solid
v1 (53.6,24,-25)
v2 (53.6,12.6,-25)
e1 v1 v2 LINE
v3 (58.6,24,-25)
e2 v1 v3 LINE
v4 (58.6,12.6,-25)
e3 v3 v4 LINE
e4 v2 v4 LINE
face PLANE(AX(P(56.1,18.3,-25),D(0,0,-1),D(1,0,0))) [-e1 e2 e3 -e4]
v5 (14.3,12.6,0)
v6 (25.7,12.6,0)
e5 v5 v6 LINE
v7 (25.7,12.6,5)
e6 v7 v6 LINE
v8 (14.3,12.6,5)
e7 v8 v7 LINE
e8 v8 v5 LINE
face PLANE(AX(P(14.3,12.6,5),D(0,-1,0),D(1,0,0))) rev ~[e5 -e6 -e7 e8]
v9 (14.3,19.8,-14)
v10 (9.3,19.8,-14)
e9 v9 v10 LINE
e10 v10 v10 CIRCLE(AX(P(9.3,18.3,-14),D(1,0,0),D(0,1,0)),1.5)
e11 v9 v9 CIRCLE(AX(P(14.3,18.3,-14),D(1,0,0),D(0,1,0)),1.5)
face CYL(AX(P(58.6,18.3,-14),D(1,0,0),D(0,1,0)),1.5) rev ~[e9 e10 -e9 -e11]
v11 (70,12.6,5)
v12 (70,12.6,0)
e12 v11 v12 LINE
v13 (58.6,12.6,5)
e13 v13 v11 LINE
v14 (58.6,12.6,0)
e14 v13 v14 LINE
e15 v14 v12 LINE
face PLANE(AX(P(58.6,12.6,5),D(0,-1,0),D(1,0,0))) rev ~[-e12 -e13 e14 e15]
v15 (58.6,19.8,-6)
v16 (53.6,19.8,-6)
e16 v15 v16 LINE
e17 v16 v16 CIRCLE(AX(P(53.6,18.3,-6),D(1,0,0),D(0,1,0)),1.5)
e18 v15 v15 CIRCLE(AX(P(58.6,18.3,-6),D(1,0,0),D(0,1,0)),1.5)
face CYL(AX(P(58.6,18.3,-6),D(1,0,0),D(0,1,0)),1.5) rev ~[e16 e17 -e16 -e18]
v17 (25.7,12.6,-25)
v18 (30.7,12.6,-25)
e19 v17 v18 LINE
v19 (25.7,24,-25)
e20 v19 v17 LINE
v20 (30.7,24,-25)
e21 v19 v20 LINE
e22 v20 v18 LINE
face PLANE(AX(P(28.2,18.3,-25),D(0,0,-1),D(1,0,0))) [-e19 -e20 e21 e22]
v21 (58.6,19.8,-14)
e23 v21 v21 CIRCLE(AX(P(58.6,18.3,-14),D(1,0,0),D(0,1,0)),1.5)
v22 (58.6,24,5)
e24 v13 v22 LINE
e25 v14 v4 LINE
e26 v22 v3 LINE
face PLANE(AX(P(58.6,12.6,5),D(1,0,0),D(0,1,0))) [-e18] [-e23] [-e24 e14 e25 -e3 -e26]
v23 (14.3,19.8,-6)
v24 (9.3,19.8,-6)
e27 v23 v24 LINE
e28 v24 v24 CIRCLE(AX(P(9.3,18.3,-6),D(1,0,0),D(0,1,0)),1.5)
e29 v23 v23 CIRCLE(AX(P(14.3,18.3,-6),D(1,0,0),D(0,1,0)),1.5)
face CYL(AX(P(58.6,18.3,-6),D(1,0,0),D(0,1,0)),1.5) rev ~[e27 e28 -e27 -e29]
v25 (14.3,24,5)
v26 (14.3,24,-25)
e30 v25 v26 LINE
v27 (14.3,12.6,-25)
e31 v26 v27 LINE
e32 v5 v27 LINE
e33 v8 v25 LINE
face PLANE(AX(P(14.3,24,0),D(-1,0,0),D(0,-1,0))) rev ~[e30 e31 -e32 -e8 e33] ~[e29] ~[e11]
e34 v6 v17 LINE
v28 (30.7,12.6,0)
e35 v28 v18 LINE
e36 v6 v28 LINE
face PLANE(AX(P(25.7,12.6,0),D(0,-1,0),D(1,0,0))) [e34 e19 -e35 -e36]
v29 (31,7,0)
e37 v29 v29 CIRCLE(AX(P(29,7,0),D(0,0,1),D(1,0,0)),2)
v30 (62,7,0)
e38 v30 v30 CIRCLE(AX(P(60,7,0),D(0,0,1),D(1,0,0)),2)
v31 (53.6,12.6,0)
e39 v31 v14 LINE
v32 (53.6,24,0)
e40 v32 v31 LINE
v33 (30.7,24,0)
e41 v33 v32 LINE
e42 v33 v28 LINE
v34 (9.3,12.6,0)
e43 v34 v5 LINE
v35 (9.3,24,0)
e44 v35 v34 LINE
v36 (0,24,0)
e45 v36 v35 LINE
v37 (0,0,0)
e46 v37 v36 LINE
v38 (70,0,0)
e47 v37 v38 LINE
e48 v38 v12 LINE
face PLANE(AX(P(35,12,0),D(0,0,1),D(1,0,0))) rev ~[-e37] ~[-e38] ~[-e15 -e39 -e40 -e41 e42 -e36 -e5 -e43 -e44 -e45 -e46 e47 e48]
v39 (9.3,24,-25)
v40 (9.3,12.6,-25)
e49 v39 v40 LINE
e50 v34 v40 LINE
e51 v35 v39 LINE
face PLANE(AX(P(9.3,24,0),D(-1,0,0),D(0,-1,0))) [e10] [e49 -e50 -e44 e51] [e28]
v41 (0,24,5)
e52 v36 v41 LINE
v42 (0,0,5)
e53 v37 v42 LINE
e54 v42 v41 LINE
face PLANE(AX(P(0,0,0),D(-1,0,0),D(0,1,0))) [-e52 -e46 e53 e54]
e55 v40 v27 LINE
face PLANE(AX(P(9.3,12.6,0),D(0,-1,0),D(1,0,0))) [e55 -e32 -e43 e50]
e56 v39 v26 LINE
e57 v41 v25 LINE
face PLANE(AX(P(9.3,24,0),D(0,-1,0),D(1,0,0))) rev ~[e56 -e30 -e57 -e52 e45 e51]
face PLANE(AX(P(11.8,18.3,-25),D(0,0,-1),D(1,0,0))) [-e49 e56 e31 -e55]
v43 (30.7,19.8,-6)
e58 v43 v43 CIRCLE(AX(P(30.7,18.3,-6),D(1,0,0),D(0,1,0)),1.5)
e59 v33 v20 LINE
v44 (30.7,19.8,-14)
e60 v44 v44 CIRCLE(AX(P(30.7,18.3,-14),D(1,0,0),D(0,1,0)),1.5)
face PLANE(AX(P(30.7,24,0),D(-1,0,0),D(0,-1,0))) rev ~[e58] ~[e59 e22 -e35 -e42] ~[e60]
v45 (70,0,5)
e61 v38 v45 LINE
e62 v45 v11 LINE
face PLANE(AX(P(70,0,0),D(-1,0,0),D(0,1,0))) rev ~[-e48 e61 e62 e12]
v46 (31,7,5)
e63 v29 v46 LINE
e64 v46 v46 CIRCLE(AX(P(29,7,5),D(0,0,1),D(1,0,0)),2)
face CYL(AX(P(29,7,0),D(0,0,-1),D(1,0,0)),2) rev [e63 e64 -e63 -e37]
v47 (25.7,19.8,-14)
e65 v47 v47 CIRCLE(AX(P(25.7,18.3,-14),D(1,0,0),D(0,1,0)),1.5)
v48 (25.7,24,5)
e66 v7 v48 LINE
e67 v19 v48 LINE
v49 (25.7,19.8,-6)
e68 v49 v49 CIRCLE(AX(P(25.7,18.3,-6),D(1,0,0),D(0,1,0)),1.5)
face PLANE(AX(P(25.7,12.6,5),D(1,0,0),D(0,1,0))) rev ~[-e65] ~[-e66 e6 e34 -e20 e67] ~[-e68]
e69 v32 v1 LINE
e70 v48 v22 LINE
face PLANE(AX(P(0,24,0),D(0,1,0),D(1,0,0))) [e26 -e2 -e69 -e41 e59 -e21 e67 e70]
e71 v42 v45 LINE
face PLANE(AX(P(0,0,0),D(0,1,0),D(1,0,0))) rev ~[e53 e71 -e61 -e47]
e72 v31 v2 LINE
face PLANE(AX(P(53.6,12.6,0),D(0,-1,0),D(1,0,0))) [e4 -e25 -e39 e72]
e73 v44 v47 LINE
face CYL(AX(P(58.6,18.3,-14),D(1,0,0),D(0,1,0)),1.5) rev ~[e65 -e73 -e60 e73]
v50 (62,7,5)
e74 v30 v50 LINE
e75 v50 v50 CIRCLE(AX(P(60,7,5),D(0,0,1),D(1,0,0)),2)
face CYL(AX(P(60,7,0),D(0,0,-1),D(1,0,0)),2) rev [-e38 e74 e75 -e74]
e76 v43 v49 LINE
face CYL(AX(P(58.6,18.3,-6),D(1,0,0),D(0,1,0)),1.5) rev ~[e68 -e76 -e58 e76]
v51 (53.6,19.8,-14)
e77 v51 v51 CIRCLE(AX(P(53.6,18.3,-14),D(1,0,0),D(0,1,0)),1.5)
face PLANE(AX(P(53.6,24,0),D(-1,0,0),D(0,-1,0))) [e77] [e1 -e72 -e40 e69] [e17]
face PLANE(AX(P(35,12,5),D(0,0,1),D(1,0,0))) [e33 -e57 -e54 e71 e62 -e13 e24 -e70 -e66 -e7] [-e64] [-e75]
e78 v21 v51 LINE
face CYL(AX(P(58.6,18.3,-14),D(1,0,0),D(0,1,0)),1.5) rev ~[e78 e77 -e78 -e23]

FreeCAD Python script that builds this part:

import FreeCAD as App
import Part
import Sketcher

V = App.Vector


def add_polygon(sketch, points):
    """Adds a closed chain of lines whose ends are joined by coincident constraints."""
    first, n = sketch.GeometryCount, len(points)
    for a, b in zip(points, points[1:] + points[:1]):
        sketch.addGeometry(Part.LineSegment(App.Vector(*a, 0), App.Vector(*b, 0)), False)
    for i in range(n):
        sketch.addConstraint(Sketcher.Constraint("Coincident", first + i, 2, first + (i + 1) % n, 1))

doc = App.newDocument("Part")
body = doc.addObject("PartDesign::Body", "Body")

# Sketch on XY plane
sketch1 = body.newObject("Sketcher::SketchObject", "Sketch")
sketch1.AttachmentSupport = (doc.getObject("XY_Plane"), [""])
sketch1.MapMode = "FlatFace"
add_polygon(sketch1, [(0, 24), (0, 0), (70, 0), (70, 24)])  # lines 0-3
sketch1.addGeometry(Part.Circle(V(29, 7, 0), V(0, 0, 1), 2), False)  # 4
sketch1.addGeometry(Part.Circle(V(60, 7, 0), V(0, 0, 1), 2), False)  # 5
sketch1.addConstraint([
    Sketcher.Constraint("Vertical", 0),
    Sketcher.Constraint("Horizontal", 1),
    Sketcher.Constraint("Vertical", 2),
    Sketcher.Constraint("Horizontal", 3),
    Sketcher.Constraint("Coincident", 0, 2, -1, 1),
    Sketcher.Constraint("Equal", 4, 5),
    Sketcher.Constraint("Horizontal", 4, 3, 5, 3),
    Sketcher.Constraint("Diameter", 4, 4.0),
    Sketcher.Constraint("DistanceX", 1, 1, 1, 2, 70.0),
    Sketcher.Constraint("DistanceY", 0, 2, 0, 1, 24.0),
    Sketcher.Constraint("DistanceX", -1, 1, 4, 3, 29.0),
    Sketcher.Constraint("DistanceY", -1, 1, 4, 3, 7.0),
    Sketcher.Constraint("DistanceX", -1, 1, 5, 3, 60.0),
])
pad1 = body.newObject("PartDesign::Pad", "Pad")
pad1.Profile = sketch1
pad1.Length = 5

# Sketch on XY plane
sketch2 = body.newObject("Sketcher::SketchObject", "Sketch001")
sketch2.AttachmentSupport = (doc.getObject("XY_Plane"), [""])
sketch2.MapMode = "FlatFace"
sketch2.AttachmentOffset = App.Placement(V(0, 0, 5), App.Rotation())
add_polygon(sketch2, [(59, 24), (59, 13), (70, 13), (70, 24)])  # lines 0-3
add_polygon(sketch2, [(14, 24), (14, 13), (26, 13), (26, 24)])  # lines 4-7
sketch2.addConstraint([
    Sketcher.Constraint("Vertical", 0),
    Sketcher.Constraint("Horizontal", 1),
    Sketcher.Constraint("Vertical", 2),
    Sketcher.Constraint("Horizontal", 3),
    Sketcher.Constraint("Vertical", 4),
    Sketcher.Constraint("Horizontal", 5),
    Sketcher.Constraint("Vertical", 6),
    Sketcher.Constraint("Horizontal", 7),
    Sketcher.Constraint("Horizontal", 1, 2, 4, 2),
    Sketcher.Constraint("Horizontal", 3, 2, 6, 2),
    Sketcher.Constraint("Equal", 3, 5),
    Sketcher.Constraint("Equal", 7, 0),
    Sketcher.Constraint("DistanceX", 1, 1, 1, 2, 11.4),
    Sketcher.Constraint("DistanceX", -1, 1, 1, 2, 70.0),
    Sketcher.Constraint("DistanceY", -1, 1, 2, 2, 24.0),
    Sketcher.Constraint("DistanceX", -1, 1, 4, 2, 14.3),
])
pocket1 = body.newObject("PartDesign::Pocket", "Pocket")
pocket1.Profile = sketch2
pocket1.Type = "ThroughAll"

# Sketch on XY plane
sketch3 = body.newObject("Sketcher::SketchObject", "Sketch002")
sketch3.AttachmentSupport = (doc.getObject("XY_Plane"), [""])
sketch3.MapMode = "FlatFace"
add_polygon(sketch3, [(9, 13), (9, 24), (14, 24), (14, 13)])  # lines 0-3
add_polygon(sketch3, [(26, 13), (26, 24), (31, 24), (31, 13)])  # lines 4-7
add_polygon(sketch3, [(54, 13), (54, 24), (59, 24), (59, 13)])  # lines 8-11
sketch3.addConstraint([
    Sketcher.Constraint("Vertical", 0),
    Sketcher.Constraint("Horizontal", 1),
    Sketcher.Constraint("Vertical", 2),
    Sketcher.Constraint("Horizontal", 3),
    Sketcher.Constraint("Vertical", 4),
    Sketcher.Constraint("Horizontal", 5),
    Sketcher.Constraint("Vertical", 6),
    Sketcher.Constraint("Horizontal", 7),
    Sketcher.Constraint("Vertical", 8),
    Sketcher.Constraint("Horizontal", 9),
    Sketcher.Constraint("Vertical", 10),
    Sketcher.Constraint("Horizontal", 11),
    Sketcher.Constraint("Horizontal", 1, 2, 4, 2),
    Sketcher.Constraint("Horizontal", 3, 2, 6, 2),
    Sketcher.Constraint("Horizontal", 5, 2, 8, 2),
    Sketcher.Constraint("Horizontal", 7, 2, 10, 2),
    Sketcher.Constraint("Equal", 3, 5),
    Sketcher.Constraint("Equal", 7, 9),
    Sketcher.Constraint("DistanceX", 1, 1, 1, 2, 5.0),
    Sketcher.Constraint("DistanceY", 0, 1, 0, 2, 11.4),
    Sketcher.Constraint("DistanceY", -1, 1, 0, 2, 24.0),
    Sketcher.Constraint("DistanceX", -1, 1, 0, 2, 9.3),
    Sketcher.Constraint("DistanceX", -1, 1, 4, 2, 25.7),
    Sketcher.Constraint("DistanceX", -1, 1, 8, 2, 53.6),
])
pad2 = body.newObject("PartDesign::Pad", "Pad001")
pad2.Profile = sketch3
pad2.Length = 25
pad2.Reversed = True

# Sketch on YZ plane
sketch4 = body.newObject("Sketcher::SketchObject", "Sketch003")
sketch4.AttachmentSupport = (doc.getObject("YZ_Plane"), [""])
sketch4.MapMode = "FlatFace"
sketch4.AttachmentOffset = App.Placement(V(0, 0, 58.6), App.Rotation())
sketch4.addGeometry([
    Part.Circle(V(18.3, -14, 0), V(0, 0, 1), 1.5),
    Part.Circle(V(18.3, -6, 0), V(0, 0, 1), 1.5),
], False)
sketch4.addConstraint([
    Sketcher.Constraint("Equal", 0, 1),
    Sketcher.Constraint("Vertical", 0, 3, 1, 3),
    Sketcher.Constraint("Diameter", 0, 3.0),
    Sketcher.Constraint("DistanceY", 0, 3, -1, 1, 14.0),
    Sketcher.Constraint("DistanceY", 1, 3, -1, 1, 6.0),
    Sketcher.Constraint("DistanceX", -1, 1, 0, 3, 18.3),
])
pocket2 = body.newObject("PartDesign::Pocket", "Pocket001")
pocket2.Profile = sketch4
pocket2.Type = "ThroughAll"

doc.recompute()
